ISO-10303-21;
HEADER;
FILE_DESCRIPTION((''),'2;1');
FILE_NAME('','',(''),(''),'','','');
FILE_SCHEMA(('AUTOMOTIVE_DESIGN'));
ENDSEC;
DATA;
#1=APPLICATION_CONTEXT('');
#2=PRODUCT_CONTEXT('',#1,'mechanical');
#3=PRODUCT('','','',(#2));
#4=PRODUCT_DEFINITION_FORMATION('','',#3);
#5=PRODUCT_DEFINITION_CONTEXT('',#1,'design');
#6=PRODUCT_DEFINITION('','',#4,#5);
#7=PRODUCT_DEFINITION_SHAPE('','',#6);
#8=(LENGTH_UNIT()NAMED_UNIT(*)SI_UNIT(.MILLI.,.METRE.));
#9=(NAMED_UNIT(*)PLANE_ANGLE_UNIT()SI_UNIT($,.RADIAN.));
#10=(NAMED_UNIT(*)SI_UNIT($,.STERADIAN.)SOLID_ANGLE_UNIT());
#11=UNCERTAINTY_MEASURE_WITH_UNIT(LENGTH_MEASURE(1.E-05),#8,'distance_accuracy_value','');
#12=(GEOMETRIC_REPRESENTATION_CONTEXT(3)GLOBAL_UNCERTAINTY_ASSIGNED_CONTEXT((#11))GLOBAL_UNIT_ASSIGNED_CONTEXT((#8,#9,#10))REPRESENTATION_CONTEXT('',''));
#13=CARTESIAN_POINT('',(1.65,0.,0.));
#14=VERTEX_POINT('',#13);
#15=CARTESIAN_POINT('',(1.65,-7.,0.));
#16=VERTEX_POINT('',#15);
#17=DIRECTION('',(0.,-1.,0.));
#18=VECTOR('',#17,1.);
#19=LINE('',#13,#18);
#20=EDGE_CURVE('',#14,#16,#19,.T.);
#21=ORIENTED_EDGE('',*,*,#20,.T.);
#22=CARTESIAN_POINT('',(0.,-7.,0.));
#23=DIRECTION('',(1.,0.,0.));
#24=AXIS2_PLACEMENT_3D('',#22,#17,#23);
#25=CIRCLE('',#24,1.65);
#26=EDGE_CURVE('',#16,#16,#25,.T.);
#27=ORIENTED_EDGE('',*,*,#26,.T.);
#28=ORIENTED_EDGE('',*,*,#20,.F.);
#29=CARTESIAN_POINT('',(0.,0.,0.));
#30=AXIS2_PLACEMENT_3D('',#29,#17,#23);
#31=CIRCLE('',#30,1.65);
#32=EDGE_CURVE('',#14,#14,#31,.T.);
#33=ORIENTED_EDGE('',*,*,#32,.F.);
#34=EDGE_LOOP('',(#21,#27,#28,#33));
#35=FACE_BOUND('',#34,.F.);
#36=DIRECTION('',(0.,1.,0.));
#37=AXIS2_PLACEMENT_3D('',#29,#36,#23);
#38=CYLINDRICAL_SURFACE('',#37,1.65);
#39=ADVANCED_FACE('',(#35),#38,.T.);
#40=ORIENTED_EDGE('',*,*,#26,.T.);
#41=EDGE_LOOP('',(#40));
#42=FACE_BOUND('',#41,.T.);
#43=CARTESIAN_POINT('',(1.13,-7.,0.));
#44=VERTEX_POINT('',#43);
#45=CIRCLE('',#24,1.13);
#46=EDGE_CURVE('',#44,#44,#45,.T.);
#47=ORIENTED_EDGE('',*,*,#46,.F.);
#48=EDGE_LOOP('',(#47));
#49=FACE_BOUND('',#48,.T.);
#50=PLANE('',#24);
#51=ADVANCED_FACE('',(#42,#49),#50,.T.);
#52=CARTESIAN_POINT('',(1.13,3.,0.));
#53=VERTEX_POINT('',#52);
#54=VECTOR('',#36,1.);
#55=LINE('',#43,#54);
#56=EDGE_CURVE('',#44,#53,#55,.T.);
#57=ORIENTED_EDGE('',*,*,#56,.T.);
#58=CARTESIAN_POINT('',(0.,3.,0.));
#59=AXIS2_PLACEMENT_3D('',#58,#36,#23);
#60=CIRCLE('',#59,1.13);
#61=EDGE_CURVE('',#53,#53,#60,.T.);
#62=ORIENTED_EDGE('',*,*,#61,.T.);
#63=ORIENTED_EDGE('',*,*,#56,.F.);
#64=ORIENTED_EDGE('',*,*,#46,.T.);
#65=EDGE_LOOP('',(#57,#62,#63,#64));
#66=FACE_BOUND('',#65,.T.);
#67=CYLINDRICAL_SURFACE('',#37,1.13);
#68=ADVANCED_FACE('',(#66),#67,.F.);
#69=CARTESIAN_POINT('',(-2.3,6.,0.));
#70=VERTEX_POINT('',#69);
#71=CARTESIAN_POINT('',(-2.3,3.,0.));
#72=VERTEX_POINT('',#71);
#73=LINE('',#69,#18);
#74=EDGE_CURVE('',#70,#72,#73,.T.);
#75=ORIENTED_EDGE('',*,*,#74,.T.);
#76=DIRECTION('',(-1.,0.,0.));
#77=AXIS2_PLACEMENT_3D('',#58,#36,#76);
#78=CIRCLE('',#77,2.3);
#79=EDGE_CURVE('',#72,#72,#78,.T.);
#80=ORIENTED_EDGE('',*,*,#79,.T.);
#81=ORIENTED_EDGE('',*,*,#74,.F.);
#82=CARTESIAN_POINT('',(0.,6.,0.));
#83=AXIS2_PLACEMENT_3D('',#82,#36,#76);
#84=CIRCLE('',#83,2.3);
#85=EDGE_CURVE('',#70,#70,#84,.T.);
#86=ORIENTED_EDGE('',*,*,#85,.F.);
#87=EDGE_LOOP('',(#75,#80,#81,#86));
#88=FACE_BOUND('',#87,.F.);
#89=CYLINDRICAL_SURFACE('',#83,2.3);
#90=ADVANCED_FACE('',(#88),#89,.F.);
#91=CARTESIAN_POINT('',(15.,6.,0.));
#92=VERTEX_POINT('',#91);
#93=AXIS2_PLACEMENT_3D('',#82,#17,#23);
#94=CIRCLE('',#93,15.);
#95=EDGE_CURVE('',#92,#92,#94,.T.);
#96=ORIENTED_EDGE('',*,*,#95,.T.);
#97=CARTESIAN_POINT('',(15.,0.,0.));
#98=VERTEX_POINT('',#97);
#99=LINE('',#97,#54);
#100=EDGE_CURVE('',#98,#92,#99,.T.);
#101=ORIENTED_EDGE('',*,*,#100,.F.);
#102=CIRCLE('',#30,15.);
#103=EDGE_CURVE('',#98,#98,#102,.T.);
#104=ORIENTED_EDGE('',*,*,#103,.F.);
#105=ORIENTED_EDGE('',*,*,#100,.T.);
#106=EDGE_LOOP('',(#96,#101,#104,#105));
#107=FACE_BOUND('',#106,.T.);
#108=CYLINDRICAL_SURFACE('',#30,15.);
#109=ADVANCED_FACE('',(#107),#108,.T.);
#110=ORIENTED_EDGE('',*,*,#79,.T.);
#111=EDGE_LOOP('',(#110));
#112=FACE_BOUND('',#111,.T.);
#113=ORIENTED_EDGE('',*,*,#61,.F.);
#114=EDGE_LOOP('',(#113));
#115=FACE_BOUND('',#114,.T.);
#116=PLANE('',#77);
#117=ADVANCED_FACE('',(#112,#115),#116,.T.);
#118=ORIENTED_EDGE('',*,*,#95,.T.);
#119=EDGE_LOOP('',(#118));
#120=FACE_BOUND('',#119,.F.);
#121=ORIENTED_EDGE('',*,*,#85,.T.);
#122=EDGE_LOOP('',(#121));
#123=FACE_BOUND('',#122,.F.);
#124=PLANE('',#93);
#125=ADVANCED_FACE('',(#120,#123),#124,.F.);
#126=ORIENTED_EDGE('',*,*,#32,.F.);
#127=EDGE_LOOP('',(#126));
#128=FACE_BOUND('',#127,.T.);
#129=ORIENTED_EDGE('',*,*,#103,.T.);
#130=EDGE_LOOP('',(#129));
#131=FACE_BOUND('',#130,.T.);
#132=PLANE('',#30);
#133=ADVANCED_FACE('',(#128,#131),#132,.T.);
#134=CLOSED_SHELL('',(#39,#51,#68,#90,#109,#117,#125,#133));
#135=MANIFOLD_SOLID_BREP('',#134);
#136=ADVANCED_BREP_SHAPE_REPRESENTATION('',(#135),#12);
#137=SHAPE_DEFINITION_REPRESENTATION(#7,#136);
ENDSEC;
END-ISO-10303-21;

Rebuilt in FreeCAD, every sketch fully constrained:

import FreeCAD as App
import Part
import Sketcher
from FreeCAD import Vector

doc = App.newDocument("Part")
body = doc.addObject("PartDesign::Body", "Body")

sketch1 = body.newObject("Sketcher::SketchObject", "Sketch")
sketch1.AttachmentSupport = (doc.getObject("XZ_Plane"), [""])
sketch1.MapMode = "FlatFace"
sketch1.addGeometry([
    Part.Circle(Vector(0, 0, 0), Vector(0, 0, 1), 15),
    Part.Circle(Vector(0, 0, 0), Vector(0, 0, 1), 1.1),
], False)
sketch1.addConstraint([
    Sketcher.Constraint("Coincident", 0, 3, -1, 1),
    Sketcher.Constraint("Coincident", 1, 3, -1, 1),
    Sketcher.Constraint("Diameter", 0, 30.0),
    Sketcher.Constraint("Diameter", 1, 2.26),
])
pad1 = body.newObject("PartDesign::Pad", "Pad")
pad1.Profile = sketch1
pad1.Length = 6
pad1.Reversed = True

sketch2 = body.newObject("Sketcher::SketchObject", "Sketch001")
sketch2.AttachmentSupport = (doc.getObject("XZ_Plane"), [""])
sketch2.MapMode = "FlatFace"
sketch2.addGeometry([
    Part.Circle(Vector(0, 0, 0), Vector(0, 0, 1), 1.6),
    Part.Circle(Vector(0, 0, 0), Vector(0, 0, 1), 1.1),
], False)
sketch2.addConstraint([
    Sketcher.Constraint("Coincident", 0, 3, -1, 1),
    Sketcher.Constraint("Coincident", 1, 3, -1, 1),
    Sketcher.Constraint("Diameter", 0, 3.3),
    Sketcher.Constraint("Diameter", 1, 2.26),
])
pad2 = body.newObject("PartDesign::Pad", "Pad001")
pad2.Profile = sketch2
pad2.Length = 7

sketch3 = body.newObject("Sketcher::SketchObject", "Sketch002")
sketch3.AttachmentSupport = (doc.getObject("XZ_Plane"), [""])
sketch3.MapMode = "FlatFace"
sketch3.AttachmentOffset = App.Placement(Vector(0, 0, -6), App.Rotation())
sketch3.addGeometry([
    Part.Circle(Vector(0, 0, 0), Vector(0, 0, 1), 2.3),
    Part.Circle(Vector(0, 0, 0), Vector(0, 0, 1), 1.1),
], False)
sketch3.addConstraint([
    Sketcher.Constraint("Coincident", 0, 3, -1, 1),
    Sketcher.Constraint("Coincident", 1, 3, -1, 1),
    Sketcher.Constraint("Diameter", 0, 4.6),
    Sketcher.Constraint("Diameter", 1, 2.26),
])
pocket1 = body.newObject("PartDesign::Pocket", "Pocket")
pocket1.Profile = sketch3
pocket1.Length = 3
pocket1.Reversed = True

doc.recompute()
